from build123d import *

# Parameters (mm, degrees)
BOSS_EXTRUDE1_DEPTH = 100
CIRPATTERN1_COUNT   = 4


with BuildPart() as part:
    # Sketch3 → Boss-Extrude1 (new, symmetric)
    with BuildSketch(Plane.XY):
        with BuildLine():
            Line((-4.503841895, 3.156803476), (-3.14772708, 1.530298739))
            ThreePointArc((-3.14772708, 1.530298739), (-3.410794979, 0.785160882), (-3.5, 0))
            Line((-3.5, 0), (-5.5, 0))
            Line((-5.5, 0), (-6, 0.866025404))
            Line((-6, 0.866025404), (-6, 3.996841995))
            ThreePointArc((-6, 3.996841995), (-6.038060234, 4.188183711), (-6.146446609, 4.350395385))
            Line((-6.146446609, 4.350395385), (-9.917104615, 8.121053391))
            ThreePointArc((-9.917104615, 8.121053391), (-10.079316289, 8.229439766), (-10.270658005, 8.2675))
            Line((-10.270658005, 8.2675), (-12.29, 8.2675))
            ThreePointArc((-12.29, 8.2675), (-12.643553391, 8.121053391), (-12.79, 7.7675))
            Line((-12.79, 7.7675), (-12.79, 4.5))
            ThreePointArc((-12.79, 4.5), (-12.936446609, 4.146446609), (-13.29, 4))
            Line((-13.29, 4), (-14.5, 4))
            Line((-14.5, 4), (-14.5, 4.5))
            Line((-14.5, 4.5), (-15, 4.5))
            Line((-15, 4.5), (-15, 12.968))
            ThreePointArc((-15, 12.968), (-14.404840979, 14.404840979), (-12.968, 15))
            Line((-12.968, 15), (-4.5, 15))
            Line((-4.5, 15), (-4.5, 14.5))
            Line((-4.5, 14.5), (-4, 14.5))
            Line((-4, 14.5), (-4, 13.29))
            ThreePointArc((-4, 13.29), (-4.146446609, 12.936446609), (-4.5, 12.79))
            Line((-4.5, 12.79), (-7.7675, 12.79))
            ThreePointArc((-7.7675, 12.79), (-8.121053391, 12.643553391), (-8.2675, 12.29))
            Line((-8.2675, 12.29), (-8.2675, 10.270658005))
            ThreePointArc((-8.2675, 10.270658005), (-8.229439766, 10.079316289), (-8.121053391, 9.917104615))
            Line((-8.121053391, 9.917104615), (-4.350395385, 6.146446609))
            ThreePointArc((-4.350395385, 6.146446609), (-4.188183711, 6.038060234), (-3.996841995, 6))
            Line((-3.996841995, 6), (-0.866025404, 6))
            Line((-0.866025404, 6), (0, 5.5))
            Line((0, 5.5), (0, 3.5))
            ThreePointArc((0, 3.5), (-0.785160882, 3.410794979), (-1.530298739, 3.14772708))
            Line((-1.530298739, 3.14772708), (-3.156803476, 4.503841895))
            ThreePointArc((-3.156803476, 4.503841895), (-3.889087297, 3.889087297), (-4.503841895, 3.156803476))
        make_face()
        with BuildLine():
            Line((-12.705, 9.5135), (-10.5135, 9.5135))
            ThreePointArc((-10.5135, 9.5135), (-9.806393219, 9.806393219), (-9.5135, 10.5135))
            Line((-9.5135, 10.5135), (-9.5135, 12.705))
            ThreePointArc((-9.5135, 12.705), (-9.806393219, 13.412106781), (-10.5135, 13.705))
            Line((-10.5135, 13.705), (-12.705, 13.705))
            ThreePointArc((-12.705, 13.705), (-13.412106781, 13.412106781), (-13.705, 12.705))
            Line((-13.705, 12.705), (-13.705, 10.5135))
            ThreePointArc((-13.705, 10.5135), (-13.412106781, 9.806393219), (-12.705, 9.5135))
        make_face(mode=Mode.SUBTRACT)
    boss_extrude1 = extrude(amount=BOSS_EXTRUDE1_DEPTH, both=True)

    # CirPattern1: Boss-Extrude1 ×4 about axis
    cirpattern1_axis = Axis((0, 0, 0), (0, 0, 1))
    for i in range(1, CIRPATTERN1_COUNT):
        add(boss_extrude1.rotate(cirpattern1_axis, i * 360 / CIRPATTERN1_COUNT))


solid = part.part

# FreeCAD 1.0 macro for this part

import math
import FreeCAD as App
import Part
import Sketcher
Q = App.Units.Quantity

doc = App.newDocument("Part")
body = doc.addObject("PartDesign::Body", "Body")

# Sketch on XY plane
sketch1 = body.newObject("Sketcher::SketchObject", "Sketch")
sketch1.AttachmentSupport = (doc.getObject("XY_Plane"), [""])
sketch1.MapMode = "FlatFace"
sketch1.addGeometry([
    Part.LineSegment(App.Vector(-3.15, 1.53, 0), App.Vector(-4.5, 3.16, 0)),  # 0
    Part.ArcOfCircle(Part.Circle(App.Vector(0, 0, 0), App.Vector(0, 0, 1), 5.5), math.radians(125.03), math.radians(144.97)),  # 1
    Part.LineSegment(App.Vector(-3.16, 4.5, 0), App.Vector(-1.53, 3.15, 0)),  # 2
    Part.ArcOfCircle(Part.Circle(App.Vector(0, 0, 0), App.Vector(0, 0, 1), 3.5), math.radians(90), math.radians(116)),  # 3
    Part.LineSegment(App.Vector(0, 3.5, 0), App.Vector(0, 5.5, 0)),  # 4
    Part.LineSegment(App.Vector(0, 5.5, 0), App.Vector(-0.87, 6, 0)),  # 5
    Part.LineSegment(App.Vector(-0.87, 6, 0), App.Vector(-4, 6, 0)),  # 6
    Part.ArcOfCircle(Part.Circle(App.Vector(-4, 6.5, 0), App.Vector(0, 0, 1), 0.5), math.radians(-135), math.radians(-90)),  # 7
    Part.LineSegment(App.Vector(-4.35, 6.15, 0), App.Vector(-8.12, 9.92, 0)),  # 8
    Part.ArcOfCircle(Part.Circle(App.Vector(-7.77, 10.27, 0), App.Vector(0, 0, 1), 0.5), math.radians(-180), math.radians(-135)),  # 9
    Part.LineSegment(App.Vector(-8.27, 10.27, 0), App.Vector(-8.27, 12.29, 0)),  # 10
    Part.ArcOfCircle(Part.Circle(App.Vector(-7.77, 12.29, 0), App.Vector(0, 0, 1), 0.5), math.radians(90), math.radians(180)),  # 11
    Part.LineSegment(App.Vector(-7.77, 12.79, 0), App.Vector(-4.5, 12.79, 0)),  # 12
    Part.ArcOfCircle(Part.Circle(App.Vector(-4.5, 13.29, 0), App.Vector(0, 0, 1), 0.5), math.radians(-90), math.radians(0)),  # 13
    Part.LineSegment(App.Vector(-4, 13.29, 0), App.Vector(-4, 14.5, 0)),  # 14
    Part.LineSegment(App.Vector(-4, 14.5, 0), App.Vector(-4.5, 14.5, 0)),  # 15
    Part.LineSegment(App.Vector(-4.5, 14.5, 0), App.Vector(-4.5, 15, 0)),  # 16
    Part.LineSegment(App.Vector(-4.5, 15, 0), App.Vector(-12.97, 15, 0)),  # 17
    Part.ArcOfCircle(Part.Circle(App.Vector(-12.97, 12.97, 0), App.Vector(0, 0, 1), 2.03), math.radians(90), math.radians(180)),  # 18
    Part.LineSegment(App.Vector(-15, 12.97, 0), App.Vector(-15, 4.5, 0)),  # 19
    Part.LineSegment(App.Vector(-15, 4.5, 0), App.Vector(-14.5, 4.5, 0)),  # 20
    Part.LineSegment(App.Vector(-14.5, 4.5, 0), App.Vector(-14.5, 4, 0)),  # 21
    Part.LineSegment(App.Vector(-14.5, 4, 0), App.Vector(-13.29, 4, 0)),  # 22
    Part.ArcOfCircle(Part.Circle(App.Vector(-13.29, 4.5, 0), App.Vector(0, 0, 1), 0.5), math.radians(-90), math.radians(0)),  # 23
    Part.LineSegment(App.Vector(-12.79, 4.5, 0), App.Vector(-12.79, 7.77, 0)),  # 24
    Part.ArcOfCircle(Part.Circle(App.Vector(-12.29, 7.77, 0), App.Vector(0, 0, 1), 0.5), math.radians(90), math.radians(180)),  # 25
    Part.LineSegment(App.Vector(-12.29, 8.27, 0), App.Vector(-10.27, 8.27, 0)),  # 26
    Part.ArcOfCircle(Part.Circle(App.Vector(-10.27, 7.77, 0), App.Vector(0, 0, 1), 0.5), math.radians(45), math.radians(90)),  # 27
    Part.LineSegment(App.Vector(-9.92, 8.12, 0), App.Vector(-6.15, 4.35, 0)),  # 28
    Part.ArcOfCircle(Part.Circle(App.Vector(-6.5, 4, 0), App.Vector(0, 0, 1), 0.5), math.radians(0), math.radians(45)),  # 29
    Part.LineSegment(App.Vector(-6, 4, 0), App.Vector(-6, 0.87, 0)),  # 30
    Part.LineSegment(App.Vector(-6, 0.87, 0), App.Vector(-5.5, 0, 0)),  # 31
    Part.LineSegment(App.Vector(-5.5, 0, 0), App.Vector(-3.5, 0, 0)),  # 32
    Part.ArcOfCircle(Part.Circle(App.Vector(0, 0, 0), App.Vector(0, 0, 1), 3.5), math.radians(154), math.radians(180)),  # 33
    Part.ArcOfCircle(Part.Circle(App.Vector(-12.7, 10.51, 0), App.Vector(0, 0, 1), 1), math.radians(-180), math.radians(-90)),  # 34
    Part.LineSegment(App.Vector(-13.71, 10.51, 0), App.Vector(-13.71, 12.71, 0)),  # 35
    Part.ArcOfCircle(Part.Circle(App.Vector(-12.7, 12.7, 0), App.Vector(0, 0, 1), 1), math.radians(90), math.radians(180)),  # 36
    Part.LineSegment(App.Vector(-12.71, 13.71, 0), App.Vector(-10.51, 13.71, 0)),  # 37
    Part.ArcOfCircle(Part.Circle(App.Vector(-10.51, 12.7, 0), App.Vector(0, 0, 1), 1), math.radians(0), math.radians(90)),  # 38
    Part.LineSegment(App.Vector(-9.51, 12.71, 0), App.Vector(-9.51, 10.51, 0)),  # 39
    Part.ArcOfCircle(Part.Circle(App.Vector(-10.51, 10.51, 0), App.Vector(0, 0, 1), 1), math.radians(-90), math.radians(0)),  # 40
    Part.LineSegment(App.Vector(-10.51, 9.51, 0), App.Vector(-12.71, 9.51, 0)),  # 41
], False)
sketch1.addConstraint([
    Sketcher.Constraint("Coincident", 0, 2, 1, 2),
    Sketcher.Constraint("Coincident", 1, 1, 2, 1),
    Sketcher.Constraint("Coincident", 2, 2, 3, 2),
    Sketcher.Constraint("Coincident", 3, 1, 4, 1),
    Sketcher.Constraint("Coincident", 4, 2, 5, 1),
    Sketcher.Constraint("Coincident", 5, 2, 6, 1),
    Sketcher.Constraint("Tangent", 6, 2, 7, 2),
    Sketcher.Constraint("Tangent", 7, 1, 8, 1),
    Sketcher.Constraint("Tangent", 8, 2, 9, 2),
    Sketcher.Constraint("Tangent", 9, 1, 10, 1),
    Sketcher.Constraint("Tangent", 10, 2, 11, 2),
    Sketcher.Constraint("Tangent", 11, 1, 12, 1),
    Sketcher.Constraint("Tangent", 12, 2, 13, 1),
    Sketcher.Constraint("Tangent", 13, 2, 14, 1),
    Sketcher.Constraint("Coincident", 14, 2, 15, 1),
    Sketcher.Constraint("Coincident", 15, 2, 16, 1),
    Sketcher.Constraint("Coincident", 16, 2, 17, 1),
    Sketcher.Constraint("Tangent", 17, 2, 18, 1),
    Sketcher.Constraint("Tangent", 18, 2, 19, 1),
    Sketcher.Constraint("Coincident", 19, 2, 20, 1),
    Sketcher.Constraint("Coincident", 20, 2, 21, 1),
    Sketcher.Constraint("Coincident", 21, 2, 22, 1),
    Sketcher.Constraint("Tangent", 22, 2, 23, 1),
    Sketcher.Constraint("Tangent", 23, 2, 24, 1),
    Sketcher.Constraint("Tangent", 24, 2, 25, 2),
    Sketcher.Constraint("Tangent", 25, 1, 26, 1),
    Sketcher.Constraint("Tangent", 26, 2, 27, 2),
    Sketcher.Constraint("Tangent", 27, 1, 28, 1),
    Sketcher.Constraint("Tangent", 28, 2, 29, 2),
    Sketcher.Constraint("Tangent", 29, 1, 30, 1),
    Sketcher.Constraint("Coincident", 30, 2, 31, 1),
    Sketcher.Constraint("Coincident", 31, 2, 32, 1),
    Sketcher.Constraint("Coincident", 32, 2, 33, 2),
    Sketcher.Constraint("Coincident", 33, 1, 0, 1),
    Sketcher.Constraint("Tangent", 34, 1, 35, 1),
    Sketcher.Constraint("Tangent", 35, 2, 36, 2),
    Sketcher.Constraint("Tangent", 36, 1, 37, 1),
    Sketcher.Constraint("Tangent", 37, 2, 38, 2),
    Sketcher.Constraint("Tangent", 38, 1, 39, 1),
    Sketcher.Constraint("Tangent", 39, 2, 40, 2),
    Sketcher.Constraint("Tangent", 40, 1, 41, 1),
    Sketcher.Constraint("Tangent", 41, 2, 34, 2),
    Sketcher.Constraint("Vertical", 4),
    Sketcher.Constraint("Horizontal", 6),
    Sketcher.Constraint("Vertical", 10),
    Sketcher.Constraint("Horizontal", 12),
    Sketcher.Constraint("Vertical", 14),
    Sketcher.Constraint("Horizontal", 15),
    Sketcher.Constraint("Vertical", 16),
    Sketcher.Constraint("Horizontal", 17),
    Sketcher.Constraint("Vertical", 19),
    Sketcher.Constraint("Horizontal", 20),
    Sketcher.Constraint("Vertical", 21),
    Sketcher.Constraint("Horizontal", 22),
    Sketcher.Constraint("Vertical", 24),
    Sketcher.Constraint("Horizontal", 26),
    Sketcher.Constraint("Vertical", 30),
    Sketcher.Constraint("Horizontal", 32),
    Sketcher.Constraint("Vertical", 35),
    Sketcher.Constraint("Horizontal", 37),
    Sketcher.Constraint("Vertical", 39),
    Sketcher.Constraint("Horizontal", 41),
    Sketcher.Constraint("Coincident", 1, 3, -1, 1),
    Sketcher.Constraint("Coincident", 3, 3, -1, 1),
    Sketcher.Constraint("Coincident", 33, 3, -1, 1),
    Sketcher.Constraint("Equal", 7, 9),
    Sketcher.Constraint("Equal", 9, 11),
    Sketcher.Constraint("Equal", 11, 13),
    Sketcher.Constraint("Equal", 13, 23),
    Sketcher.Constraint("Equal", 23, 25),
    Sketcher.Constraint("Equal", 25, 27),
    Sketcher.Constraint("Equal", 27, 29),
    Sketcher.Constraint("Equal", 3, 33),
    Sketcher.Constraint("Equal", 34, 36),
    Sketcher.Constraint("Equal", 36, 38),
    Sketcher.Constraint("Equal", 38, 40),
    Sketcher.Constraint("PointOnObject", 3, 1, -2),
    Sketcher.Constraint("PointOnObject", 31, 2, -1),
    Sketcher.Constraint("Parallel", 8, 28),
    Sketcher.Constraint("Horizontal", 23, 3, 19, 2),
    Sketcher.Constraint("Vertical", 12, 2, 15, 2),
    Sketcher.Constraint("Equal", 15, 20),
    Sketcher.Constraint("Equal", 32, 4),
    Sketcher.Constraint("Equal", 26, 10),
    Sketcher.Constraint("Equal", 22, 14),
    Sketcher.Constraint("Equal", 20, 16),
    Sketcher.Constraint("Equal", 17, 19),
    Sketcher.Constraint("Equal", 12, 24),
    Sketcher.Constraint("Equal", 6, 30),
    Sketcher.Constraint("Equal", 41, 35),
    Sketcher.Constraint("Equal", 0, 2),
    Sketcher.Constraint("Equal", 8, 28),
    Sketcher.Constraint("Equal", 5, 31),
    Sketcher.Constraint("Radius", 34, Q("1 mm")),
    Sketcher.Constraint("Radius", 1, Q("5.5 mm")),
    Sketcher.Constraint("Radius", 3, Q("3.5 mm")),
    Sketcher.Constraint("Radius", 7, Q("0.5 mm")),
    Sketcher.Constraint("DistanceX", 32, 1, 32, 2, Q("2 mm")),
    Sketcher.Constraint("Angle", 5, Q("150 deg")),
    Sketcher.Constraint("Angle", 8, Q("135 deg")),
    Sketcher.Constraint("Distance", 5, Q("1 mm")),
    Sketcher.Constraint("DistanceX", 13, 2, -1, 1, Q("4 mm")),
    Sketcher.Constraint("DistanceY", -1, 1, 16, 2, Q("15 mm")),
    Sketcher.Constraint("Radius", 18, Q("2.032 mm")),
    Sketcher.Constraint("DistanceX", 22, 1, 22, 2, Q("1.21 mm")),
    Sketcher.Constraint("Angle", 0, Q("129.82 deg")),
    Sketcher.Constraint("Angle", 2, Q("-39.82 deg")),
    Sketcher.Constraint("DistanceX", 12, 1, 12, 2, Q("3.2675 mm")),
    Sketcher.Constraint("DistanceX", 37, 1, 37, 2, Q("2.1915 mm")),
    Sketcher.Constraint("DistanceX", 34, 3, -1, 1, Q("12.705 mm")),
    Sketcher.Constraint("DistanceY", -1, 1, 36, 3, Q("12.705 mm")),
    Sketcher.Constraint("DistanceX", 0, 2, 7, 3, Q("0.507 mm")),
    Sketcher.Constraint("DistanceX", 26, 1, 26, 2, Q("2.019342 mm")),
])
pad1 = body.newObject("PartDesign::Pad", "Pad")
pad1.Profile = sketch1
pad1.Length = 200
pad1.Midplane = True
doc.recompute()

polarpattern = body.newObject("PartDesign::PolarPattern", "PolarPattern")
polarpattern.Originals = [pad1]
polarpattern.Axis = (doc.getObject("Z_Axis"), [""])
polarpattern.Angle = 360
polarpattern.Occurrences = 4
body.Tip = polarpattern

doc.recompute()
